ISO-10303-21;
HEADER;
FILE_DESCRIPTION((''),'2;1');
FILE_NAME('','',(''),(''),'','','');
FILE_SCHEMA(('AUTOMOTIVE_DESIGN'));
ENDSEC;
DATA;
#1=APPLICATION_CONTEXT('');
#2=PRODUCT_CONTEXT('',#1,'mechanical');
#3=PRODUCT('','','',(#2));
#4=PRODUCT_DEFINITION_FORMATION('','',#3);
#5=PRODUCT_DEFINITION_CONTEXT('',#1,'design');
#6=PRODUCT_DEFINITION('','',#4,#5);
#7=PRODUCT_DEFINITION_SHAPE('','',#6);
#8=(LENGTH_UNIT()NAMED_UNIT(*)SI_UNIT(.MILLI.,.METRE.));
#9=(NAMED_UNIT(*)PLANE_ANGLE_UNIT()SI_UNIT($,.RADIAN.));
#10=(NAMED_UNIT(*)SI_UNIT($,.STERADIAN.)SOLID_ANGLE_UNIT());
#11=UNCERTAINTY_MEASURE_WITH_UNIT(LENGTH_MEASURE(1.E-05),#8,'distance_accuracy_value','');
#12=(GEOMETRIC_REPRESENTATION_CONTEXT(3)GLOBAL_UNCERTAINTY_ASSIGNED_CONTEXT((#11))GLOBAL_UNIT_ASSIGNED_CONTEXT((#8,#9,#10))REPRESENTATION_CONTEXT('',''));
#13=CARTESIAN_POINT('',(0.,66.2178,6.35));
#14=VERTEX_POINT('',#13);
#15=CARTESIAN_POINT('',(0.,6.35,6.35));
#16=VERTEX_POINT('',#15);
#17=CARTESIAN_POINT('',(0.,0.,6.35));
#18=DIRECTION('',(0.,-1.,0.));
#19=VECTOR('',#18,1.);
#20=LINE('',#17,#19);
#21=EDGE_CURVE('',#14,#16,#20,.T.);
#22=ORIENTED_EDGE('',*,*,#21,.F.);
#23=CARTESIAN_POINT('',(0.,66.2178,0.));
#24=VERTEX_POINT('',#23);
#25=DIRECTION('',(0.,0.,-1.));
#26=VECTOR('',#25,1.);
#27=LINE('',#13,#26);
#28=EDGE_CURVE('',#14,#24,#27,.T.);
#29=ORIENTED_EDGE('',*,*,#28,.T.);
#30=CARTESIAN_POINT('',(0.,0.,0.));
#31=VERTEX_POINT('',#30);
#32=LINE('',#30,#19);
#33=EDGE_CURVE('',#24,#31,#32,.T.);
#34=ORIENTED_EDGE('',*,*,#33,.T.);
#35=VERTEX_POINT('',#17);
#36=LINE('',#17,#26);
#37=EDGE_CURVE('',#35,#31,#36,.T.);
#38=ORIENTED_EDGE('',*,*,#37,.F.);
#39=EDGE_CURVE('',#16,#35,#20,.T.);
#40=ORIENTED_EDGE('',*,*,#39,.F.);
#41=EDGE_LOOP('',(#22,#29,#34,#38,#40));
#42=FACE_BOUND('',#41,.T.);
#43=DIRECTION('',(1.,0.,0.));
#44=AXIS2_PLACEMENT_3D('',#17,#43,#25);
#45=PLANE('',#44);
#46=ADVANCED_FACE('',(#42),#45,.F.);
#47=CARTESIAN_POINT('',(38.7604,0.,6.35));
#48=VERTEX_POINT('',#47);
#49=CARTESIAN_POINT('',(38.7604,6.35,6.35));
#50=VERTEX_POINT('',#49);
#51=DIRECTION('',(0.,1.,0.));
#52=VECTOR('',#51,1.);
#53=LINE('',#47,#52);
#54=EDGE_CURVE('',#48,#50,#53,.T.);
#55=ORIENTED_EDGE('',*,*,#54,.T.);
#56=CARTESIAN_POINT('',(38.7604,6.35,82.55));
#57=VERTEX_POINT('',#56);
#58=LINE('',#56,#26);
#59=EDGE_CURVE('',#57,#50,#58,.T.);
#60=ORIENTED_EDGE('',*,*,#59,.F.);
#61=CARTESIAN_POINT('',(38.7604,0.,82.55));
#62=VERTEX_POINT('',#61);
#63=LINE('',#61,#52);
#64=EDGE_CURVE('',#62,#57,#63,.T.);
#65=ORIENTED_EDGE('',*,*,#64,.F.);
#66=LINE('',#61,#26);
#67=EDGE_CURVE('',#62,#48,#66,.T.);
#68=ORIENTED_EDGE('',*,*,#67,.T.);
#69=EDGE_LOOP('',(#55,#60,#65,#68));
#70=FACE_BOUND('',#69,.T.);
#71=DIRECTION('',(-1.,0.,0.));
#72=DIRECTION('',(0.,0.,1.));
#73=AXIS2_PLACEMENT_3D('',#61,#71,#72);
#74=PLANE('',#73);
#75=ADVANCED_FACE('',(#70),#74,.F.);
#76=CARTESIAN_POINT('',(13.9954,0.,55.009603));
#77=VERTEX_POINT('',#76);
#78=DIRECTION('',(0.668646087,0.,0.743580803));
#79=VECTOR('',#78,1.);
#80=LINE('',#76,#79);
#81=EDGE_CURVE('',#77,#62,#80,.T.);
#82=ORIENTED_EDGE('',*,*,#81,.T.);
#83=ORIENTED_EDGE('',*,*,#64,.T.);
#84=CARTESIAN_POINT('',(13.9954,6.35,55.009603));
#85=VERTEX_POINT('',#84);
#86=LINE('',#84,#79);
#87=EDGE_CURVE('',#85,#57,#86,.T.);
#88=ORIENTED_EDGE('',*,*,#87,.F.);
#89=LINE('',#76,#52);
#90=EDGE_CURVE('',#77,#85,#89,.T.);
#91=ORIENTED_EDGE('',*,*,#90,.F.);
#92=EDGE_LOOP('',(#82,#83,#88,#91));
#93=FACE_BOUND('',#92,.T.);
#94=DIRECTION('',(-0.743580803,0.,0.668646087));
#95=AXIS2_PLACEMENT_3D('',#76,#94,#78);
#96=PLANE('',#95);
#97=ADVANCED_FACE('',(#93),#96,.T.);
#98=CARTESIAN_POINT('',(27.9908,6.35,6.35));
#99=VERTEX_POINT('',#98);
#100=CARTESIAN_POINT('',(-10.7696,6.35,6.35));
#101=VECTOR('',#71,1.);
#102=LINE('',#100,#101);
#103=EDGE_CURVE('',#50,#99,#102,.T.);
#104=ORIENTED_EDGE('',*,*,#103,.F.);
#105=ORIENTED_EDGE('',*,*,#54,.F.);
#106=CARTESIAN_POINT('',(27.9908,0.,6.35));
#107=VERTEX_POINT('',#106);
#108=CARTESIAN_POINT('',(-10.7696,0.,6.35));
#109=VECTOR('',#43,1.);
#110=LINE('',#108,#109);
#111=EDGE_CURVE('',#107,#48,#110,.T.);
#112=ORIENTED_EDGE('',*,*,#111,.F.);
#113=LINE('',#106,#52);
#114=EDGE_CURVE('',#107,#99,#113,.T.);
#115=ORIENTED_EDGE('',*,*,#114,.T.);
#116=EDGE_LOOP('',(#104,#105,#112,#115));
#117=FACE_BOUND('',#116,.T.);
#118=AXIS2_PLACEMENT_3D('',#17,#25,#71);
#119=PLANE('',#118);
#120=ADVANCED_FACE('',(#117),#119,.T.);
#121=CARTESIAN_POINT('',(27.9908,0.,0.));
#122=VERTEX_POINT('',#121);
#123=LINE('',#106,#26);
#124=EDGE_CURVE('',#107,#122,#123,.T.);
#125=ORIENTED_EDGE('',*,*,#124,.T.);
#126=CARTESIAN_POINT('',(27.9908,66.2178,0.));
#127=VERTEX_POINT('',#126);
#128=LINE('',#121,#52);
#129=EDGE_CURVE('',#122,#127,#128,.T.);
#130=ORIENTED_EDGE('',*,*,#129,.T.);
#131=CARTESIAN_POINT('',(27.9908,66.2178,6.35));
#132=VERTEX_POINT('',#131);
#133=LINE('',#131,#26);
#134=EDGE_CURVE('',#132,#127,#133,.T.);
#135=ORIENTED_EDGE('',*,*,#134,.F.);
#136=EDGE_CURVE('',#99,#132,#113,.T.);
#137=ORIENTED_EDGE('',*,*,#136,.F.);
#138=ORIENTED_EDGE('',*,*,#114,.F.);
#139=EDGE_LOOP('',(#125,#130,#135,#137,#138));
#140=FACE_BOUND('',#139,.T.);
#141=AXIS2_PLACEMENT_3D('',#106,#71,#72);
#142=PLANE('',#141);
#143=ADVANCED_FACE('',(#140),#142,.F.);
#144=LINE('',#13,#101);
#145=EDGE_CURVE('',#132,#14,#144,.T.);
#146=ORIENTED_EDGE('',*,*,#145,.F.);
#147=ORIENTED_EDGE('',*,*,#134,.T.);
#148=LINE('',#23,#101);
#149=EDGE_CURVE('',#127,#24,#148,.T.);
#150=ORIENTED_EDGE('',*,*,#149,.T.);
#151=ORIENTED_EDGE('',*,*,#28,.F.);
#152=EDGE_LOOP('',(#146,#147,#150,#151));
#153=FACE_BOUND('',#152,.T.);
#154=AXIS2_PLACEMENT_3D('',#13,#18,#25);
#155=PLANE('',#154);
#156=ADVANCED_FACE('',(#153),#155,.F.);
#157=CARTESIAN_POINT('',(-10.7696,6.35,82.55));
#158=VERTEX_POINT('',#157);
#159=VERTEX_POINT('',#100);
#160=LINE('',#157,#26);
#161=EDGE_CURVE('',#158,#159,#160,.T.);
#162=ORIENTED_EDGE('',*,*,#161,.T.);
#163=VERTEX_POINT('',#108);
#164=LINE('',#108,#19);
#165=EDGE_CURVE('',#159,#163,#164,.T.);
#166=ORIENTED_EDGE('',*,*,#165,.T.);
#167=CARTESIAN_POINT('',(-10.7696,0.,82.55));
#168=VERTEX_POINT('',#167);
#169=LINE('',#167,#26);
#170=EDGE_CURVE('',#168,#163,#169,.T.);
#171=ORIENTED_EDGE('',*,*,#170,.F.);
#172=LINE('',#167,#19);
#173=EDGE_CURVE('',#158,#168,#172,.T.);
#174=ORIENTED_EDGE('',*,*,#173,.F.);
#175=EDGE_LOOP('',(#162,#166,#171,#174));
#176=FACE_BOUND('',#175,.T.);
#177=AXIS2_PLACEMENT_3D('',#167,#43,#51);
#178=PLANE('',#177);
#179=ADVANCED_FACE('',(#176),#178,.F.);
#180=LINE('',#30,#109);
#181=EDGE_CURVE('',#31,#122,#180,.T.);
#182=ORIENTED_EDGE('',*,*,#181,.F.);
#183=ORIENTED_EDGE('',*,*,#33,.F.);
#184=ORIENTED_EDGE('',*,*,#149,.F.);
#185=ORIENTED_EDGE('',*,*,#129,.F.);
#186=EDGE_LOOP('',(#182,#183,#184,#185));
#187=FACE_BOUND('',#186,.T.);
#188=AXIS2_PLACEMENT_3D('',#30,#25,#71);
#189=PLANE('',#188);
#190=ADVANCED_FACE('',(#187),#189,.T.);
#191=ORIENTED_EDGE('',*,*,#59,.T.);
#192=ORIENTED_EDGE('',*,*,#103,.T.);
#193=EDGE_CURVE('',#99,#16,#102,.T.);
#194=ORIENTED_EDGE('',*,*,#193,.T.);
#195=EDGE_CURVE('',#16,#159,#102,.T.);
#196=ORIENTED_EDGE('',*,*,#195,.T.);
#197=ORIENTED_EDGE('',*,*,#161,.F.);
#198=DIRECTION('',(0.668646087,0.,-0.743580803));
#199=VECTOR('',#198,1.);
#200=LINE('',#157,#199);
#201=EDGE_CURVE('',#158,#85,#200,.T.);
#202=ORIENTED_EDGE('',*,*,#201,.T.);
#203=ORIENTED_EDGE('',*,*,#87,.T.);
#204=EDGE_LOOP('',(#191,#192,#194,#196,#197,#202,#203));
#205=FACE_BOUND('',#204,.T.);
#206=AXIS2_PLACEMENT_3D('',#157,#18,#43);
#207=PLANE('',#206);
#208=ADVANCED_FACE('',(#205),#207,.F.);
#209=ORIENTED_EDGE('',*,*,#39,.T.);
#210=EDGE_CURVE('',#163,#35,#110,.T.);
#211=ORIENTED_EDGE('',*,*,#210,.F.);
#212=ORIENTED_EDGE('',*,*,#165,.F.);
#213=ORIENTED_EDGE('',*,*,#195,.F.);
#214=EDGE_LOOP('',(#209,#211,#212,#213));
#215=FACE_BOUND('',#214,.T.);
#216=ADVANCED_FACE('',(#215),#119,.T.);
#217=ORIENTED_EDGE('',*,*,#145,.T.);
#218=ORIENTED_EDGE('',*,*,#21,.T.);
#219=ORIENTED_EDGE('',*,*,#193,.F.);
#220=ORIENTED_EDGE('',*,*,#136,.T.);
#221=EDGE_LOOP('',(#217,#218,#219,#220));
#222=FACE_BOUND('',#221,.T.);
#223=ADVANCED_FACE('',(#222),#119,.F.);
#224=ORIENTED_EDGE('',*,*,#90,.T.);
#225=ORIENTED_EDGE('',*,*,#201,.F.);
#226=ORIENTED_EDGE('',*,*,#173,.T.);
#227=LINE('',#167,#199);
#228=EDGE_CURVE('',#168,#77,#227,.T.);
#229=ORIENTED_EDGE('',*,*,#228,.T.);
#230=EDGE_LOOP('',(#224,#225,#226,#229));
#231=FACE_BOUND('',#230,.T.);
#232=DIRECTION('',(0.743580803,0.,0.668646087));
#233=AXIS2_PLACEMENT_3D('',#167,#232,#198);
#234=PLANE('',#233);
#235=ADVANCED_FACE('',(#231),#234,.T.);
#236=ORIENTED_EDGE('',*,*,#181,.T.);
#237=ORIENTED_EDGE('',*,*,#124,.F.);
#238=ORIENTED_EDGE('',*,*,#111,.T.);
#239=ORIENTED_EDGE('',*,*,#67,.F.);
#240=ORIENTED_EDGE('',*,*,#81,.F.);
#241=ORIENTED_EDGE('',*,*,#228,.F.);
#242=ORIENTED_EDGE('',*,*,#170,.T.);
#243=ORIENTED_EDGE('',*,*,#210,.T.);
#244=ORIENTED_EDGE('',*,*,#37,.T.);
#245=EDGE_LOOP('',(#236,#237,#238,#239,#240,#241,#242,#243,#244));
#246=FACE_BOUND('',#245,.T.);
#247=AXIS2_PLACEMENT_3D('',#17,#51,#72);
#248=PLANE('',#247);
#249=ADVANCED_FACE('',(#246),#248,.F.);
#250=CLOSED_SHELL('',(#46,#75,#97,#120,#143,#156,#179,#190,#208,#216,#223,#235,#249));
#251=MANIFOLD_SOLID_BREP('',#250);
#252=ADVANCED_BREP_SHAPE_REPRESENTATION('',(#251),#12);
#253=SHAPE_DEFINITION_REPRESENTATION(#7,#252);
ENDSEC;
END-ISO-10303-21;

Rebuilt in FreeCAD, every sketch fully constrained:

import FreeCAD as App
import Part
import Sketcher
Q = App.Units.Quantity

doc = App.newDocument("Part")
params = doc.addObject("Spreadsheet::Sheet", "Params")
for row, (alias, value) in enumerate([
    ("sketch1_width", "1.102 in"),
    ("sketch1_height", "2.607 in"),
    ("pad1_length", "0.25 in"),
    ("sketch2_width", "1.95 in"),
    ("sketch2_height", "0.25 in"),
    ("pad2_length", "3 in"),
    ("sketch3_width", "1.95 in"),
], start=1):
    params.set(f"A{row}", alias)
    params.set(f"B{row}", "=" + value)
    params.setAlias(f"B{row}", alias)

body = doc.addObject("PartDesign::Body", "Body")

# Sketch on XY plane
sketch1 = body.newObject("Sketcher::SketchObject", "Sketch")
sketch1.AttachmentSupport = (doc.getObject("XY_Plane"), [""])
sketch1.MapMode = "FlatFace"
sketch1.addGeometry(Part.LineSegment(App.Vector(0, 66, 0), App.Vector(0, 0, 0)), False)
sketch1.addGeometry(Part.LineSegment(App.Vector(0, 0, 0), App.Vector(28, 0, 0)), False)
sketch1.addGeometry(Part.LineSegment(App.Vector(28, 0, 0), App.Vector(28, 66, 0)), False)
sketch1.addGeometry(Part.LineSegment(App.Vector(28, 66, 0), App.Vector(0, 66, 0)), False)
sketch1.addConstraint(Sketcher.Constraint("Coincident", 0, 2, 1, 1))
sketch1.addConstraint(Sketcher.Constraint("Coincident", 1, 2, 2, 1))
sketch1.addConstraint(Sketcher.Constraint("Coincident", 2, 2, 3, 1))
sketch1.addConstraint(Sketcher.Constraint("Coincident", 3, 2, 0, 1))
sketch1.addConstraint(Sketcher.Constraint("Vertical", 0))
sketch1.addConstraint(Sketcher.Constraint("Horizontal", 1))
sketch1.addConstraint(Sketcher.Constraint("Vertical", 2))
sketch1.addConstraint(Sketcher.Constraint("Horizontal", 3))
sketch1.addConstraint(Sketcher.Constraint("Coincident", 0, 2, -1, 1))
sketch1.addConstraint(Sketcher.Constraint("DistanceX", 1, 1, 1, 2, Q("1.102 in")))
sketch1.addConstraint(Sketcher.Constraint("DistanceY", 0, 2, 0, 1, Q("2.607 in")))
sketch1.setExpression("Constraints[9]", "Params.sketch1_width")
sketch1.setExpression("Constraints[10]", "Params.sketch1_height")
pad1 = body.newObject("PartDesign::Pad", "Pad")
pad1.Profile = sketch1
pad1.setExpression("Length", "Params.pad1_length")

# Sketch on XY plane
sketch2 = body.newObject("Sketcher::SketchObject", "Sketch001")
sketch2.AttachmentSupport = (doc.getObject("XY_Plane"), [""])
sketch2.MapMode = "FlatFace"
sketch2.AttachmentOffset = App.Placement(App.Vector(0, 0, 0.25 * 25.4), App.Rotation())
sketch2.addGeometry(Part.LineSegment(App.Vector(-11, 6, 0), App.Vector(-11, 0, 0)), False)
sketch2.addGeometry(Part.LineSegment(App.Vector(-11, 0, 0), App.Vector(39, 0, 0)), False)
sketch2.addGeometry(Part.LineSegment(App.Vector(39, 0, 0), App.Vector(39, 6, 0)), False)
sketch2.addGeometry(Part.LineSegment(App.Vector(39, 6, 0), App.Vector(-11, 6, 0)), False)
sketch2.addConstraint(Sketcher.Constraint("Coincident", 0, 2, 1, 1))
sketch2.addConstraint(Sketcher.Constraint("Coincident", 1, 2, 2, 1))
sketch2.addConstraint(Sketcher.Constraint("Coincident", 2, 2, 3, 1))
sketch2.addConstraint(Sketcher.Constraint("Coincident", 3, 2, 0, 1))
sketch2.addConstraint(Sketcher.Constraint("Vertical", 0))
sketch2.addConstraint(Sketcher.Constraint("Horizontal", 1))
sketch2.addConstraint(Sketcher.Constraint("Vertical", 2))
sketch2.addConstraint(Sketcher.Constraint("Horizontal", 3))
sketch2.addConstraint(Sketcher.Constraint("PointOnObject", 0, 2, -1))
sketch2.addConstraint(Sketcher.Constraint("DistanceX", 1, 1, 1, 2, Q("1.95 in")))
sketch2.addConstraint(Sketcher.Constraint("DistanceY", 0, 2, 0, 1, Q("0.25 in")))
sketch2.addConstraint(Sketcher.Constraint("DistanceX", 0, 2, -1, 1, Q("0.424 in")))
sketch2.setExpression("Constraints[9]", "Params.sketch2_width")
sketch2.setExpression("Constraints[10]", "Params.sketch2_height")
pad2 = body.newObject("PartDesign::Pad", "Pad001")
pad2.Profile = sketch2
pad2.setExpression("Length", "Params.pad2_length")

# Sketch on XZ plane
sketch3 = body.newObject("Sketcher::SketchObject", "Sketch002")
sketch3.AttachmentSupport = (doc.getObject("XZ_Plane"), [""])
sketch3.MapMode = "FlatFace"
sketch3.AttachmentOffset = App.Placement(App.Vector(0, 0, -0.25 * 25.4), App.Rotation())
sketch3.addGeometry(Part.LineSegment(App.Vector(14, 55, 0), App.Vector(-11, 83, 0)), False)
sketch3.addGeometry(Part.LineSegment(App.Vector(-11, 83, 0), App.Vector(39, 83, 0)), False)
sketch3.addGeometry(Part.LineSegment(App.Vector(39, 83, 0), App.Vector(14, 55, 0)), False)
sketch3.addConstraint(Sketcher.Constraint("Coincident", 0, 2, 1, 1))
sketch3.addConstraint(Sketcher.Constraint("Coincident", 1, 2, 2, 1))
sketch3.addConstraint(Sketcher.Constraint("Coincident", 2, 2, 0, 1))
sketch3.addConstraint(Sketcher.Constraint("Horizontal", 1))
sketch3.addConstraint(Sketcher.Constraint("Equal", 0, 2))
sketch3.addConstraint(Sketcher.Constraint("DistanceX", 1, 1, 1, 2, Q("1.95 in")))
sketch3.addConstraint(Sketcher.Constraint("DistanceY", -1, 1, 0, 2, Q("3.25 in")))
sketch3.addConstraint(Sketcher.Constraint("DistanceX", 0, 2, -1, 1, Q("0.424 in")))
sketch3.addConstraint(Sketcher.Constraint("Distance", 0, Q("37.037531 mm")))
sketch3.setExpression("Constraints[5]", "Params.sketch3_width")
pocket1 = body.newObject("PartDesign::Pocket", "Pocket")
pocket1.Profile = sketch3
pocket1.Type = "ThroughAll"
pocket1.Reversed = True

doc.recompute()
